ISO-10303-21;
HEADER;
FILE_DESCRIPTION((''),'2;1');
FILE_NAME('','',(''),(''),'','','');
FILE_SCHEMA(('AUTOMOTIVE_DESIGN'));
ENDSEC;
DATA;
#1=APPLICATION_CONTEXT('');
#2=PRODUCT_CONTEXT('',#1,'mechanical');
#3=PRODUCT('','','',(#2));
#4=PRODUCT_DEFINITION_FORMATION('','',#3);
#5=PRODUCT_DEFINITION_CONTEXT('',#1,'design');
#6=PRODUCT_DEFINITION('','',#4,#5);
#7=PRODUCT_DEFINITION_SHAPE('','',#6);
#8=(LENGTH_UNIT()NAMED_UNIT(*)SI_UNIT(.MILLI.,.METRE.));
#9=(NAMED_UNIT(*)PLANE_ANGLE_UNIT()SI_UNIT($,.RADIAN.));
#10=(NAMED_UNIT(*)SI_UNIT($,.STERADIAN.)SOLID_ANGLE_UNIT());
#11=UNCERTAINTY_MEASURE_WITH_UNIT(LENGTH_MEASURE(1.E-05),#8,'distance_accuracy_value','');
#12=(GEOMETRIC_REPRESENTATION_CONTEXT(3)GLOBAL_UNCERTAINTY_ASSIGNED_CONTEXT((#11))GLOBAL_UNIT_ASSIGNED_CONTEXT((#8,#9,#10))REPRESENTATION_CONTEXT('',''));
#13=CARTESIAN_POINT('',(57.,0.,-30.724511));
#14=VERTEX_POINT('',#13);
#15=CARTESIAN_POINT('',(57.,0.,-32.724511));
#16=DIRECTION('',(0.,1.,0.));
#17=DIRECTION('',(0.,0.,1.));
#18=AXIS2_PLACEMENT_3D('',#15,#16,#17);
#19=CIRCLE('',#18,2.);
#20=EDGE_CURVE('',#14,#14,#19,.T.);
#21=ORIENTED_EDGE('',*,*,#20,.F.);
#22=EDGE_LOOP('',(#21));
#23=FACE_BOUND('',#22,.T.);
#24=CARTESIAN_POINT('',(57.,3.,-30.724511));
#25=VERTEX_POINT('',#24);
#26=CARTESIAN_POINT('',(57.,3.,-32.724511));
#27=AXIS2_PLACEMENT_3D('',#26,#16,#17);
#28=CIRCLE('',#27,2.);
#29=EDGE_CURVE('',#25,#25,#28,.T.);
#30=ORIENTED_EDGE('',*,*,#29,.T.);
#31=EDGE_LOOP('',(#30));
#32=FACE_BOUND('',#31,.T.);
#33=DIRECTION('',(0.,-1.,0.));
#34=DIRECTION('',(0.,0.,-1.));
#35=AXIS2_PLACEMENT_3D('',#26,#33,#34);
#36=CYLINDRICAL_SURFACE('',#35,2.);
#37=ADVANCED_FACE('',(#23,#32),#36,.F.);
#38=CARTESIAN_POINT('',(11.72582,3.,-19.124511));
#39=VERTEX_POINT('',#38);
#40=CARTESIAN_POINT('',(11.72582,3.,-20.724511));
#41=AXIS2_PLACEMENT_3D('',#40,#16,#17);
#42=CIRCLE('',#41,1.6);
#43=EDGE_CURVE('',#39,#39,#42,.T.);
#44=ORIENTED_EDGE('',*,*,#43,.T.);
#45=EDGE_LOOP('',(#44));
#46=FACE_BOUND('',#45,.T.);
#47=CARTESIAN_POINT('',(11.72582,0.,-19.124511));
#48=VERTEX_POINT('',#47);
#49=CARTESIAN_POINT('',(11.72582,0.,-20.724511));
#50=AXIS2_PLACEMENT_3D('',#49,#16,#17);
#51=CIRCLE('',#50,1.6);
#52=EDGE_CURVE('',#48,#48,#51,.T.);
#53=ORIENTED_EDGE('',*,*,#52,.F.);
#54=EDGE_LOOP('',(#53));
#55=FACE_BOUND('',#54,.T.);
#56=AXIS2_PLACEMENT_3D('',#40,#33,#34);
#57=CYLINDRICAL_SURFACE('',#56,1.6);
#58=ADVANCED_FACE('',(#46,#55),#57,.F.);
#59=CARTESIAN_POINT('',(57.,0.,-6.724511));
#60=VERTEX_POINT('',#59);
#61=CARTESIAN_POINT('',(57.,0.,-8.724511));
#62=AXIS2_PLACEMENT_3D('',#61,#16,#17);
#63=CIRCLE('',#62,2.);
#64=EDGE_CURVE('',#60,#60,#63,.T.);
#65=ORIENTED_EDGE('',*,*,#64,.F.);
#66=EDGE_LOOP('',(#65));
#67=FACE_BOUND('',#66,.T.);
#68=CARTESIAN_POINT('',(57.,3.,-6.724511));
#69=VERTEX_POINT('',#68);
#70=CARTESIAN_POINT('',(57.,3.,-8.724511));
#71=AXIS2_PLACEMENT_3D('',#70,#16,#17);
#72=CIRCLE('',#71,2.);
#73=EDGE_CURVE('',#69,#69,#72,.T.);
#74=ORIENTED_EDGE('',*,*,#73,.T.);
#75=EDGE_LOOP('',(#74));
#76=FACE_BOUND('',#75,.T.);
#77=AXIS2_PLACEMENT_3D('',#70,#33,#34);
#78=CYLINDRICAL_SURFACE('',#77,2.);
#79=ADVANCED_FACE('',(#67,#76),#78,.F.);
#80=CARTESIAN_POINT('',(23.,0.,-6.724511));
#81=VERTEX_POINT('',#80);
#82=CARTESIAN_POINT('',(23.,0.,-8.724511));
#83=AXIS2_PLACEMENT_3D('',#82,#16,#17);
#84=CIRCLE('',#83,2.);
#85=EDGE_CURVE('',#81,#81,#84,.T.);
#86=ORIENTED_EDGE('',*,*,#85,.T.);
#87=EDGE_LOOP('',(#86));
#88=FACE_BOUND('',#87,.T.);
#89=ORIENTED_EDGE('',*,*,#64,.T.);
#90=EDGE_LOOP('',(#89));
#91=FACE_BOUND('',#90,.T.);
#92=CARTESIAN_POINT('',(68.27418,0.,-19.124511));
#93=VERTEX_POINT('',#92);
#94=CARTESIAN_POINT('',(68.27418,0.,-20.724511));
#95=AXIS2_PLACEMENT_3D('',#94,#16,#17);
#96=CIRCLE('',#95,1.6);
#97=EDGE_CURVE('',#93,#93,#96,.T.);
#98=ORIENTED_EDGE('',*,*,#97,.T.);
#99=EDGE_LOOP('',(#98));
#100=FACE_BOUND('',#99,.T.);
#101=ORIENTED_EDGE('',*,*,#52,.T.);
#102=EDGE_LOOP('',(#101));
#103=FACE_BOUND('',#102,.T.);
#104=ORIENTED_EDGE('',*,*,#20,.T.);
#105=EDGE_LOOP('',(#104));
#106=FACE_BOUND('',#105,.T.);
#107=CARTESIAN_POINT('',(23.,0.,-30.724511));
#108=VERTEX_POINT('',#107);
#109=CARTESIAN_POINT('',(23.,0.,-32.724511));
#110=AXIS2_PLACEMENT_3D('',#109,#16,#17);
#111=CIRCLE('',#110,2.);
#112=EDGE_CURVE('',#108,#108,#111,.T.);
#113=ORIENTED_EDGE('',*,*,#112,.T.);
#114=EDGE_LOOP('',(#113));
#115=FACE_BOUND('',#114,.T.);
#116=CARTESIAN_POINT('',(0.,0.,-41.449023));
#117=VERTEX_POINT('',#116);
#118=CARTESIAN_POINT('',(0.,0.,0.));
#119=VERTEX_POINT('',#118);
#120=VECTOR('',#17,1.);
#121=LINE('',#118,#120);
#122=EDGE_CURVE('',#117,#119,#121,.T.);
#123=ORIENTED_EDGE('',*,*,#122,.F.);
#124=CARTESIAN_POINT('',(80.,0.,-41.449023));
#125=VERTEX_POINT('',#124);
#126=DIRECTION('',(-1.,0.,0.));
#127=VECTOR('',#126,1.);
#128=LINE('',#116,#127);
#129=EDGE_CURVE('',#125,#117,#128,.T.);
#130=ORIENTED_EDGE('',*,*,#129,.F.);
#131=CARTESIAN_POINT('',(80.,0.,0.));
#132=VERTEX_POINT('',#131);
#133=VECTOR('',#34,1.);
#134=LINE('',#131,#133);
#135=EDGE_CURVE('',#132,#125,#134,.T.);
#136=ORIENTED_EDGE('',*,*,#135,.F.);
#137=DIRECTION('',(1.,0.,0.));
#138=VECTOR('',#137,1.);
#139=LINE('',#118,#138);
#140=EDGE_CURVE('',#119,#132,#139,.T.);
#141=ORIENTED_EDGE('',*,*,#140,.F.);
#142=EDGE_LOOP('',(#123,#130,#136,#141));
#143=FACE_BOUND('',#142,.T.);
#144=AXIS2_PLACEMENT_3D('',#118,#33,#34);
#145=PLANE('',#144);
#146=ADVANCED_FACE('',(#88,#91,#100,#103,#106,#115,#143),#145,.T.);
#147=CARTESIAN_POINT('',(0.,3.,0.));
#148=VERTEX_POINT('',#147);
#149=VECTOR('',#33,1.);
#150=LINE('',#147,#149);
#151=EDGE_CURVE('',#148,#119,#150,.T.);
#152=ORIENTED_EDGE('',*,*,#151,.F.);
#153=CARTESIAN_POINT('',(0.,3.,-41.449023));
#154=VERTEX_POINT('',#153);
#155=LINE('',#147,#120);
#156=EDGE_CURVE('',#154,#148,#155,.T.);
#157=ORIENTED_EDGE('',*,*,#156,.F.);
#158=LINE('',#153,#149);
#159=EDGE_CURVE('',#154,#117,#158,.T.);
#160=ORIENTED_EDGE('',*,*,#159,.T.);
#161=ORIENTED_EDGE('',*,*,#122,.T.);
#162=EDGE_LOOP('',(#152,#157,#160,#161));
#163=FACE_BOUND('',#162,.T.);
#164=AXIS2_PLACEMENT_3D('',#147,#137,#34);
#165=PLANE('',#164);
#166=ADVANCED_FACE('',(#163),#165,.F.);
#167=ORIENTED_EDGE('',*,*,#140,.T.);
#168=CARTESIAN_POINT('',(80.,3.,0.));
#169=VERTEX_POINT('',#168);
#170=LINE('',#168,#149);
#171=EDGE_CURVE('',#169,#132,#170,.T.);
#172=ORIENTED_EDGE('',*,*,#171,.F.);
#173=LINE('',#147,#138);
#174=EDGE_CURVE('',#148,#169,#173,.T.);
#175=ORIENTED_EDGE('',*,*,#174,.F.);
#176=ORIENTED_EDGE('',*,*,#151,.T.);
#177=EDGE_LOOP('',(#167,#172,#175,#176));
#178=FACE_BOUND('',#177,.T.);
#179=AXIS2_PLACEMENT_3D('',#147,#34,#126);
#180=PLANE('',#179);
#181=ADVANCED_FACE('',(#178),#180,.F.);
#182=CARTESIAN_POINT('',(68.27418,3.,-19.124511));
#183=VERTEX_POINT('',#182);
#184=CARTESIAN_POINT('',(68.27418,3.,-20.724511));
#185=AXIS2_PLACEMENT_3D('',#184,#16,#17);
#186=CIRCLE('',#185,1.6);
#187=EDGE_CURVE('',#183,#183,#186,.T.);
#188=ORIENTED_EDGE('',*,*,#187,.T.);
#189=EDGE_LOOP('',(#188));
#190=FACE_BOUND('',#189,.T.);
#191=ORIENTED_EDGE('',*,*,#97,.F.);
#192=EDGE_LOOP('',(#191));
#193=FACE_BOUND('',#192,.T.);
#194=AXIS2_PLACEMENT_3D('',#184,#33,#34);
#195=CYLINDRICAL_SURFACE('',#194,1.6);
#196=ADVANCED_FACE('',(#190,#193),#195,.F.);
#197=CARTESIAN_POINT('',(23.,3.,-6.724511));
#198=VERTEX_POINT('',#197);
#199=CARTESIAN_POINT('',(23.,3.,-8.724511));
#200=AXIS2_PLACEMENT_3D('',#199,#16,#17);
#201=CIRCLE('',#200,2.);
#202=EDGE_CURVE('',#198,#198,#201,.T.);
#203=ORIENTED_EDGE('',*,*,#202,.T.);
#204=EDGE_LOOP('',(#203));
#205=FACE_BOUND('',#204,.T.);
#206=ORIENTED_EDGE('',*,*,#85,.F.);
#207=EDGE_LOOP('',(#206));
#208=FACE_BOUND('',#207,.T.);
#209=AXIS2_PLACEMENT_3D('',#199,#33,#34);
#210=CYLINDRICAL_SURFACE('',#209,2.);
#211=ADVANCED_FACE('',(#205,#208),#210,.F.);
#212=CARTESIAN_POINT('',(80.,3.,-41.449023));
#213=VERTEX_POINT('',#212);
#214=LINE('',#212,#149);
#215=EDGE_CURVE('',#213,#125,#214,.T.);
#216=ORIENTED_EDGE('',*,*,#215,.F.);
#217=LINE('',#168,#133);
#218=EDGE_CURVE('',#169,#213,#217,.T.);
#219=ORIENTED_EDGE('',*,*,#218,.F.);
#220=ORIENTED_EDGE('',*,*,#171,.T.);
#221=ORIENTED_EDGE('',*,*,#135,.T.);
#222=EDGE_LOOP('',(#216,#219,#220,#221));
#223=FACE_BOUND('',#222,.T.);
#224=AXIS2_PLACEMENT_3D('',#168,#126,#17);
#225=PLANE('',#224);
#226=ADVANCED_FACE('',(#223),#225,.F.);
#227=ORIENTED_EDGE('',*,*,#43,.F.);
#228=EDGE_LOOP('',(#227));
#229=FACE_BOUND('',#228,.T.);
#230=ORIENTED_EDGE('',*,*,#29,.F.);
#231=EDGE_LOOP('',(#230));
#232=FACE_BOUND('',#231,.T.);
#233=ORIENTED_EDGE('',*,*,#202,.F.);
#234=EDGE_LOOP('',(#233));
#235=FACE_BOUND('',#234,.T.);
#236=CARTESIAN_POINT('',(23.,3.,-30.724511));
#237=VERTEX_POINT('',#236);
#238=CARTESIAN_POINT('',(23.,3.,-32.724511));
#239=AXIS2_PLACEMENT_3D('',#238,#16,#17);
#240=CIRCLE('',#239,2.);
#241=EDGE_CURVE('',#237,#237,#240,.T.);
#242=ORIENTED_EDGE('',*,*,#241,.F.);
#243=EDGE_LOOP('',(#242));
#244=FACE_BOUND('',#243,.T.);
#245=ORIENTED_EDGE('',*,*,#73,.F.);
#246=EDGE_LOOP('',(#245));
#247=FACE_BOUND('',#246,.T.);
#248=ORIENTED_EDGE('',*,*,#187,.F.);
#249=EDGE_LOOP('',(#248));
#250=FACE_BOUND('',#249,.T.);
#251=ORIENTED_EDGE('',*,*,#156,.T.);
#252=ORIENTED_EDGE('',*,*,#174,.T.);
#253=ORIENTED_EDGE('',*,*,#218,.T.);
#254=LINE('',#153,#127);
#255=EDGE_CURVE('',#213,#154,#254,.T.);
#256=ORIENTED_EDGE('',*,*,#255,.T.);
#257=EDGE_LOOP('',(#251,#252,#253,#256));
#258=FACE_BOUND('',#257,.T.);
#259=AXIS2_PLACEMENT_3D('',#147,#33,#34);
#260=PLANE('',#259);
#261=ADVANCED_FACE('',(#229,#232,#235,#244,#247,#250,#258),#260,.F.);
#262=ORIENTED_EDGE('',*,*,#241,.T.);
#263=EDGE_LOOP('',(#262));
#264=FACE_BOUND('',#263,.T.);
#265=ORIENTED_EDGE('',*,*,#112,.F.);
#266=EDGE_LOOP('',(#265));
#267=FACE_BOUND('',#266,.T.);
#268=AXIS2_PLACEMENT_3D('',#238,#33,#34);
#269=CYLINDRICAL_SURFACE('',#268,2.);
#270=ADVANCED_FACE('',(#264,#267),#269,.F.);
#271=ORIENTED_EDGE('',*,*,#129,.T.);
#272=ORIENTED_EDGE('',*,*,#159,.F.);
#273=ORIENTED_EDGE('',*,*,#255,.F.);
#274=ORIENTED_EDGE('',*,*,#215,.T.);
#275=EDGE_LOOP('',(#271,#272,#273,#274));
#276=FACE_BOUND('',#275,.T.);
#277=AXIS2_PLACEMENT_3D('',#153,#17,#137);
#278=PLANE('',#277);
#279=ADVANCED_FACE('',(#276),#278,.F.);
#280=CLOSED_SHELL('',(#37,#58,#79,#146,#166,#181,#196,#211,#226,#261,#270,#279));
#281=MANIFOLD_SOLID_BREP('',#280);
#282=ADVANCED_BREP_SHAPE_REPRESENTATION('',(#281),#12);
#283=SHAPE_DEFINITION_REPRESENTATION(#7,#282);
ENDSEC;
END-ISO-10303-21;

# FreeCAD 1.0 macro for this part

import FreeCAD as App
import Part
import Sketcher
Q = App.Units.Quantity

doc = App.newDocument("Part")
body = doc.addObject("PartDesign::Body", "Body")

# Sketch on XZ plane
sketch1 = doc.addObject("Sketcher::SketchObject", "Sketch")
body.addObject(sketch1)
sketch1.AttachmentSupport = (doc.XZ_Plane, [""])
sketch1.MapMode = "FlatFace"
sketch1.addGeometry(Part.LineSegment(App.Vector(0, -41.4, 0), App.Vector(0, 0, 0)), False)
sketch1.addGeometry(Part.LineSegment(App.Vector(0, 0, 0), App.Vector(80, 0, 0)), False)
sketch1.addGeometry(Part.LineSegment(App.Vector(80, 0, 0), App.Vector(80, -41.4, 0)), False)
sketch1.addGeometry(Part.LineSegment(App.Vector(80, -41.4, 0), App.Vector(0, -41.4, 0)), False)
sketch1.addGeometry(Part.Circle(App.Vector(23, -8.7, 0), App.Vector(0, 0, 1), 2), False)
sketch1.addGeometry(Part.Circle(App.Vector(57, -8.7, 0), App.Vector(0, 0, 1), 2), False)
sketch1.addGeometry(Part.Circle(App.Vector(11.7, -20.7, 0), App.Vector(0, 0, 1), 1.6), False)
sketch1.addGeometry(Part.Circle(App.Vector(23, -32.7, 0), App.Vector(0, 0, 1), 2), False)
sketch1.addGeometry(Part.Circle(App.Vector(68.3, -20.7, 0), App.Vector(0, 0, 1), 1.6), False)
sketch1.addGeometry(Part.Circle(App.Vector(57, -32.7, 0), App.Vector(0, 0, 1), 2), False)
sketch1.addConstraint(Sketcher.Constraint("Coincident", 0, 2, 1, 1))
sketch1.addConstraint(Sketcher.Constraint("Coincident", 1, 2, 2, 1))
sketch1.addConstraint(Sketcher.Constraint("Coincident", 2, 2, 3, 1))
sketch1.addConstraint(Sketcher.Constraint("Coincident", 3, 2, 0, 1))
sketch1.addConstraint(Sketcher.Constraint("Vertical", 0))
sketch1.addConstraint(Sketcher.Constraint("Horizontal", 1))
sketch1.addConstraint(Sketcher.Constraint("Vertical", 2))
sketch1.addConstraint(Sketcher.Constraint("Horizontal", 3))
sketch1.addConstraint(Sketcher.Constraint("Coincident", 0, 2, -1, 1))
sketch1.addConstraint(Sketcher.Constraint("Equal", 4, 5))
sketch1.addConstraint(Sketcher.Constraint("Equal", 5, 7))
sketch1.addConstraint(Sketcher.Constraint("Equal", 6, 8))
sketch1.addConstraint(Sketcher.Constraint("Equal", 7, 9))
sketch1.addConstraint(Sketcher.Constraint("Horizontal", 4, 3, 5, 3))
sketch1.addConstraint(Sketcher.Constraint("Horizontal", 6, 3, 8, 3))
sketch1.addConstraint(Sketcher.Constraint("Horizontal", 7, 3, 9, 3))
sketch1.addConstraint(Sketcher.Constraint("Vertical", 4, 3, 7, 3))
sketch1.addConstraint(Sketcher.Constraint("Vertical", 5, 3, 9, 3))
sketch1.addConstraint(Sketcher.Constraint("Diameter", 4, Q("4 mm")))
sketch1.addConstraint(Sketcher.Constraint("Diameter", 6, Q("3.2 mm")))
sketch1.addConstraint(Sketcher.Constraint("DistanceX", 1, 1, 1, 2, Q("80 mm")))
sketch1.addConstraint(Sketcher.Constraint("DistanceX", -1, 1, 4, 3, Q("23 mm")))
sketch1.addConstraint(Sketcher.Constraint("DistanceX", -1, 1, 5, 3, Q("57 mm")))
sketch1.addConstraint(Sketcher.Constraint("DistanceY", 6, 3, 4, 3, Q("12 mm")))
sketch1.addConstraint(Sketcher.Constraint("DistanceY", 7, 3, 6, 3, Q("12 mm")))
sketch1.addConstraint(Sketcher.Constraint("DistanceY", 0, 1, 0, 2, Q("41.449023 mm")))
sketch1.addConstraint(Sketcher.Constraint("DistanceY", 4, 3, -1, 1, Q("8.724511 mm")))
sketch1.addConstraint(Sketcher.Constraint("DistanceX", -1, 1, 6, 3, Q("11.72582 mm")))
sketch1.addConstraint(Sketcher.Constraint("DistanceX", -1, 1, 8, 3, Q("68.27418 mm")))
pad1 = doc.addObject("PartDesign::Pad", "Pad")
body.addObject(pad1)
pad1.Profile = sketch1
pad1.Length = 3
pad1.Reversed = True

doc.recompute()
